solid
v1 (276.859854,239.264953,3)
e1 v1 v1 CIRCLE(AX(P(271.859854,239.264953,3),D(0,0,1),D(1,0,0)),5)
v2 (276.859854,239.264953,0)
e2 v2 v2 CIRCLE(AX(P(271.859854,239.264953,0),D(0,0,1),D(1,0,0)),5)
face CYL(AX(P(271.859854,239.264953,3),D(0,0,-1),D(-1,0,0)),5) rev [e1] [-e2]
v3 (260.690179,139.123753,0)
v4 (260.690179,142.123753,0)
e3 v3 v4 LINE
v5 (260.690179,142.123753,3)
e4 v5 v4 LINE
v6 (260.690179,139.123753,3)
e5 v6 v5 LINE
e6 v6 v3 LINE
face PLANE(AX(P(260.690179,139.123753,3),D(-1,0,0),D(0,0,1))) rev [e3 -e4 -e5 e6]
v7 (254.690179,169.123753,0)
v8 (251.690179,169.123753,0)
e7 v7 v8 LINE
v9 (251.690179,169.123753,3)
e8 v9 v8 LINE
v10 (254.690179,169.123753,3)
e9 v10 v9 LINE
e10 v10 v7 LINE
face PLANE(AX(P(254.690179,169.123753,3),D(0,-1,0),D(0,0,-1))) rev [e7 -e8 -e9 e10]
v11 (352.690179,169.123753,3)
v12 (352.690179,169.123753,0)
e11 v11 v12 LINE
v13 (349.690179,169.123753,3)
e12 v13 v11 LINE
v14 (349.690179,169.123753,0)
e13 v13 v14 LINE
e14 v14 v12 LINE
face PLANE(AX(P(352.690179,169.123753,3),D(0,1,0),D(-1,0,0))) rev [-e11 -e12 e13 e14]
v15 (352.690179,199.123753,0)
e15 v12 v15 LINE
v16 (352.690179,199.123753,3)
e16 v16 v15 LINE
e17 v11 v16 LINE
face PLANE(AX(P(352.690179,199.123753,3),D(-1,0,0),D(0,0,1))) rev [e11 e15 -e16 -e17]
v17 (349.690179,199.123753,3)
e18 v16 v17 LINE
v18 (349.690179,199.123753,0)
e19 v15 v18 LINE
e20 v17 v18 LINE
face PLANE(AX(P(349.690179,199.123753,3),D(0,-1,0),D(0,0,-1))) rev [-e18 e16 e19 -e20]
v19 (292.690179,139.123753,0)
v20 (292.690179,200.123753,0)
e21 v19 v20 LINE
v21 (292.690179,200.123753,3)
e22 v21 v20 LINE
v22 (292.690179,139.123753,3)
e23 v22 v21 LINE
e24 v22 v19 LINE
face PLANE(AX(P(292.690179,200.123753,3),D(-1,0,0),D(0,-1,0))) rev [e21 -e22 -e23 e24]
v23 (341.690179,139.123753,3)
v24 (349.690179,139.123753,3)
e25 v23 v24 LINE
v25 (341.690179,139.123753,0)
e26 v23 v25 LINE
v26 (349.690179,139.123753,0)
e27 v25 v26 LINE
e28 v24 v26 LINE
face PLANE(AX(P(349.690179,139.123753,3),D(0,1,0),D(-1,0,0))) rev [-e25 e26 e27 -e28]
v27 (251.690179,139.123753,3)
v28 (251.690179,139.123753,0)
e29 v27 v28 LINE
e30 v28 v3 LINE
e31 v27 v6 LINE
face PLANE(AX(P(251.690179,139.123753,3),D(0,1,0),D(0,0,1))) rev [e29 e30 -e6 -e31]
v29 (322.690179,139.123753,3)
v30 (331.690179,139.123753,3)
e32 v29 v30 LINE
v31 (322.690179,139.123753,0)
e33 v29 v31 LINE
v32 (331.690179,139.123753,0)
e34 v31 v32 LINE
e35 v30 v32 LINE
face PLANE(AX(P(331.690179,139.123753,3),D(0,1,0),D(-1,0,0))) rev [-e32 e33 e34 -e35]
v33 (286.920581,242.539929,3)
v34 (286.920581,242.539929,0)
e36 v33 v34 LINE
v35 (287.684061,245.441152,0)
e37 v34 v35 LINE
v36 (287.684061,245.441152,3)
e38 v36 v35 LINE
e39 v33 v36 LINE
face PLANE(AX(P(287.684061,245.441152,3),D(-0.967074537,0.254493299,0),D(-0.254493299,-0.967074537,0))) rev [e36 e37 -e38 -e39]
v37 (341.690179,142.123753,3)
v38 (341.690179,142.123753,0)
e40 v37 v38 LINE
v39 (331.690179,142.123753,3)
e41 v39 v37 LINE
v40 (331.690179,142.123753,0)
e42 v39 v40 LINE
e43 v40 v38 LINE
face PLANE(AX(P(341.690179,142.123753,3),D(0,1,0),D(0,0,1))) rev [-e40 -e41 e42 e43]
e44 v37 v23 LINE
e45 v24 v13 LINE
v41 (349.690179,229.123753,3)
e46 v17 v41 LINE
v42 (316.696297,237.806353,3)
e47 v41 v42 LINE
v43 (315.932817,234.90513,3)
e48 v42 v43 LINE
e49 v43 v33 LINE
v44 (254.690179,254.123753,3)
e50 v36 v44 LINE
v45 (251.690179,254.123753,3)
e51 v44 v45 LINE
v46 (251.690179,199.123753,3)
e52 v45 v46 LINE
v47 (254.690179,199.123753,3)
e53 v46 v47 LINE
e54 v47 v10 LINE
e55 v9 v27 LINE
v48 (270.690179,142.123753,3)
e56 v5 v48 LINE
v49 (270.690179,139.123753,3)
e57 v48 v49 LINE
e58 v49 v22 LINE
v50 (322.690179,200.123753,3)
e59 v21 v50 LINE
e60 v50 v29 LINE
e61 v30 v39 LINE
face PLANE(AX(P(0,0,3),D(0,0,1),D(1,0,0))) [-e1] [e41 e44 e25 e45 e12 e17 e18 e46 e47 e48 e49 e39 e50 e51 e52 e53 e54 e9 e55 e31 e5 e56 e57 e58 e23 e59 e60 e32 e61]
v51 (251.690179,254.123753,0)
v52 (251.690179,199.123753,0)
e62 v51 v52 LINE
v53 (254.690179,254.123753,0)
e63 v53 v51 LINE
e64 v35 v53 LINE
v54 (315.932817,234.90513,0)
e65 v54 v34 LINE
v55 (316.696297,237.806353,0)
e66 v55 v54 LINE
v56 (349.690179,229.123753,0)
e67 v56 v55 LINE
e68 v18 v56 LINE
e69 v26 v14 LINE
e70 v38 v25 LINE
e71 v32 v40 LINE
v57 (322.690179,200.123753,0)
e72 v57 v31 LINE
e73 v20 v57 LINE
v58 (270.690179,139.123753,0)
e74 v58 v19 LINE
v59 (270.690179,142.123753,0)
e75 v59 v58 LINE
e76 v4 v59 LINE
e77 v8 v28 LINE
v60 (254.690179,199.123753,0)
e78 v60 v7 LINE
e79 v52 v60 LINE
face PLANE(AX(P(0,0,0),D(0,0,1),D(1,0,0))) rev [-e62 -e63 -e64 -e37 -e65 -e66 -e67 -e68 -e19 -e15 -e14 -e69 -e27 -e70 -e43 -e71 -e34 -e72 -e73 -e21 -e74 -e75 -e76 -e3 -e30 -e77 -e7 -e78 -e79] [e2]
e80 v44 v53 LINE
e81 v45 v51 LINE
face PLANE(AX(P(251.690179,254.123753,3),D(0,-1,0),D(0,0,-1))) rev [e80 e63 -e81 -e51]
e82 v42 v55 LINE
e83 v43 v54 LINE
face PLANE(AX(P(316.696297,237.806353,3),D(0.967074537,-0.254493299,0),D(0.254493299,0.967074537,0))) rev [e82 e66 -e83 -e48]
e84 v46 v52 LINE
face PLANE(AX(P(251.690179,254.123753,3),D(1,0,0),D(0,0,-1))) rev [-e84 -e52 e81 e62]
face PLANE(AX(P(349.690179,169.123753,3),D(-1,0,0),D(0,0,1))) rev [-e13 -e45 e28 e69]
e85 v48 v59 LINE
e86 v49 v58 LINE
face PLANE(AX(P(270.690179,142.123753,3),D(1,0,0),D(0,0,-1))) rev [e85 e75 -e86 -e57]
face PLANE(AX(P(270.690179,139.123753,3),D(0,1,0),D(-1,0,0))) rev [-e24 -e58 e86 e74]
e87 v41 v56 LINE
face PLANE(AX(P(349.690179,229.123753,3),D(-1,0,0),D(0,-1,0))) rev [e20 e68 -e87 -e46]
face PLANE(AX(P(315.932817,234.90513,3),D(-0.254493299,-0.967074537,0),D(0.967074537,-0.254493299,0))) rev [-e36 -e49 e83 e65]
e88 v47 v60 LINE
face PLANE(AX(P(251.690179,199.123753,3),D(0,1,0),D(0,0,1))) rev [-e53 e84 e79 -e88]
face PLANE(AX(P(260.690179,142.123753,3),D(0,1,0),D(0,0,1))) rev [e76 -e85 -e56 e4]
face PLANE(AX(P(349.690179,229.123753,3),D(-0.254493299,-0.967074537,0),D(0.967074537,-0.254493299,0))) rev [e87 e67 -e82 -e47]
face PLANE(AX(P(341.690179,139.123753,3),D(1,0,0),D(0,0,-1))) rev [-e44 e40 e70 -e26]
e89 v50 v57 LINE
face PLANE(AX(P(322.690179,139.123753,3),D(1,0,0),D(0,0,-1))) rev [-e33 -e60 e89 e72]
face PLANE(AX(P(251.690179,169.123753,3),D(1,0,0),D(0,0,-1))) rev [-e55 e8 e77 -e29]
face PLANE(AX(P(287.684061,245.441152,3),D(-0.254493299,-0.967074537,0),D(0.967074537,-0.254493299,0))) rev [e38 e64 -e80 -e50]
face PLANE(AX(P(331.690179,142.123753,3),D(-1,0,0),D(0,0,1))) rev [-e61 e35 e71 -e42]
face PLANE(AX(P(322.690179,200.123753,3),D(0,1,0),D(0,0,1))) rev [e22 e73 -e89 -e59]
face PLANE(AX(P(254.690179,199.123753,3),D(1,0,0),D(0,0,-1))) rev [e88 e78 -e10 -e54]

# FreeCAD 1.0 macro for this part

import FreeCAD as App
import Part
import Sketcher
from FreeCAD import Vector


def add_polygon(sketch, points):
    """Adds a closed chain of lines whose ends are joined by coincident constraints."""
    first, n = sketch.GeometryCount, len(points)
    for a, b in zip(points, points[1:] + points[:1]):
        sketch.addGeometry(Part.LineSegment(App.Vector(*a, 0), App.Vector(*b, 0)), False)
    for i in range(n):
        sketch.addConstraint(Sketcher.Constraint("Coincident", first + i, 2, first + (i + 1) % n, 1))

doc = App.newDocument("Part")
body = doc.addObject("PartDesign::Body", "Body")

# Sketch on XY plane
sketch1 = body.newObject("Sketcher::SketchObject", "Sketch")
sketch1.AttachmentSupport = (doc.getObject("XY_Plane"), [""])
sketch1.MapMode = "FlatFace"
add_polygon(sketch1, [(352.7, 169.1), (352.7, 199.1), (349.7, 199.1), (349.7, 229.1), (316.7, 237.8), (315.9, 234.9), (286.9, 242.5), (287.7, 245.4), (254.7, 254.1), (251.7, 254.1), (251.7, 199.1), (254.7, 199.1), (254.7, 169.1), (251.7, 169.1), (251.7, 139.1), (260.7, 139.1), (260.7, 142.1), (270.7, 142.1), (270.7, 139.1), (292.7, 139.1), (292.7, 200.1), (322.7, 200.1), (322.7, 139.1), (331.7, 139.1), (331.7, 142.1), (341.7, 142.1), (341.7, 139.1), (349.7, 139.1), (349.7, 169.1)])  # lines 0-28
sketch1.addGeometry(Part.Circle(Vector(271.9, 239.3, 0), Vector(0, 0, 1), 5), False)  # 29
sketch1.addConstraint([
    Sketcher.Constraint("Vertical", 0),
    Sketcher.Constraint("Horizontal", 1),
    Sketcher.Constraint("Vertical", 2),
    Sketcher.Constraint("Horizontal", 8),
    Sketcher.Constraint("Vertical", 9),
    Sketcher.Constraint("Horizontal", 10),
    Sketcher.Constraint("Vertical", 11),
    Sketcher.Constraint("Horizontal", 12),
    Sketcher.Constraint("Vertical", 13),
    Sketcher.Constraint("Horizontal", 14),
    Sketcher.Constraint("Vertical", 15),
    Sketcher.Constraint("Horizontal", 16),
    Sketcher.Constraint("Vertical", 17),
    Sketcher.Constraint("Horizontal", 18),
    Sketcher.Constraint("Vertical", 19),
    Sketcher.Constraint("Horizontal", 20),
    Sketcher.Constraint("Vertical", 21),
    Sketcher.Constraint("Horizontal", 22),
    Sketcher.Constraint("Vertical", 23),
    Sketcher.Constraint("Horizontal", 24),
    Sketcher.Constraint("Vertical", 25),
    Sketcher.Constraint("Horizontal", 26),
    Sketcher.Constraint("Vertical", 27),
    Sketcher.Constraint("Horizontal", 28),
    Sketcher.Constraint("Perpendicular", 3, 4),
    Sketcher.Constraint("Perpendicular", 4, 5),
    Sketcher.Constraint("Perpendicular", 5, 6),
    Sketcher.Constraint("Perpendicular", 6, 7),
    Sketcher.Constraint("Horizontal", 1, 2, 9, 2),
    Sketcher.Constraint("Horizontal", 14, 2, 17, 2),
    Sketcher.Constraint("Horizontal", 18, 2, 21, 2),
    Sketcher.Constraint("Horizontal", 16, 2, 23, 2),
    Sketcher.Constraint("Horizontal", 22, 2, 25, 2),
    Sketcher.Constraint("Horizontal", 12, 2, 27, 2),
    Sketcher.Constraint("Vertical", 7, 2, 10, 2),
    Sketcher.Constraint("Vertical", 9, 2, 12, 2),
    Sketcher.Constraint("Vertical", 2, 2, 26, 2),
    Sketcher.Constraint("Equal", 1, 8),
    Sketcher.Constraint("Equal", 14, 22),
    Sketcher.Constraint("Equal", 16, 24),
    Sketcher.Constraint("Equal", 20, 0),
    Sketcher.Constraint("Equal", 0, 2),
    Sketcher.Constraint("Equal", 11, 13),
    Sketcher.Constraint("Equal", 28, 15),
    Sketcher.Constraint("Equal", 4, 6),
    Sketcher.Constraint("Equal", 3, 7),
    Sketcher.Constraint("Diameter", 29, 10.0),
    Sketcher.Constraint("DistanceX", 1, 2, 1, 1, 3.0),
    Sketcher.Constraint("DistanceX", 14, 1, 14, 2, 9.0),
    Sketcher.Constraint("DistanceX", 16, 1, 16, 2, 10.0),
    Sketcher.Constraint("DistanceX", 18, 1, 18, 2, 22.0),
    Sketcher.Constraint("DistanceX", 20, 1, 20, 2, 30.0),
    Sketcher.Constraint("DistanceX", 26, 1, 26, 2, 8.0),
    Sketcher.Constraint("DistanceY", 9, 2, 9, 1, 55.0),
    Sketcher.Constraint("DistanceY", 19, 1, 19, 2, 61.0),
    Sketcher.Constraint("Distance", 4, 3.0),
    Sketcher.Constraint("Distance", 5, 30.0),
    Sketcher.Constraint("DistanceY", 0, 2, 29, 3, 40.1412),
    Sketcher.Constraint("DistanceX", -1, 1, 0, 2, 352.690179),
    Sketcher.Constraint("DistanceY", -1, 1, 4, 2, 234.90513),
    Sketcher.Constraint("DistanceX", -1, 1, 29, 3, 271.859854),
])
pad1 = body.newObject("PartDesign::Pad", "Pad")
pad1.Profile = sketch1
pad1.Length = 3

doc.recompute()
